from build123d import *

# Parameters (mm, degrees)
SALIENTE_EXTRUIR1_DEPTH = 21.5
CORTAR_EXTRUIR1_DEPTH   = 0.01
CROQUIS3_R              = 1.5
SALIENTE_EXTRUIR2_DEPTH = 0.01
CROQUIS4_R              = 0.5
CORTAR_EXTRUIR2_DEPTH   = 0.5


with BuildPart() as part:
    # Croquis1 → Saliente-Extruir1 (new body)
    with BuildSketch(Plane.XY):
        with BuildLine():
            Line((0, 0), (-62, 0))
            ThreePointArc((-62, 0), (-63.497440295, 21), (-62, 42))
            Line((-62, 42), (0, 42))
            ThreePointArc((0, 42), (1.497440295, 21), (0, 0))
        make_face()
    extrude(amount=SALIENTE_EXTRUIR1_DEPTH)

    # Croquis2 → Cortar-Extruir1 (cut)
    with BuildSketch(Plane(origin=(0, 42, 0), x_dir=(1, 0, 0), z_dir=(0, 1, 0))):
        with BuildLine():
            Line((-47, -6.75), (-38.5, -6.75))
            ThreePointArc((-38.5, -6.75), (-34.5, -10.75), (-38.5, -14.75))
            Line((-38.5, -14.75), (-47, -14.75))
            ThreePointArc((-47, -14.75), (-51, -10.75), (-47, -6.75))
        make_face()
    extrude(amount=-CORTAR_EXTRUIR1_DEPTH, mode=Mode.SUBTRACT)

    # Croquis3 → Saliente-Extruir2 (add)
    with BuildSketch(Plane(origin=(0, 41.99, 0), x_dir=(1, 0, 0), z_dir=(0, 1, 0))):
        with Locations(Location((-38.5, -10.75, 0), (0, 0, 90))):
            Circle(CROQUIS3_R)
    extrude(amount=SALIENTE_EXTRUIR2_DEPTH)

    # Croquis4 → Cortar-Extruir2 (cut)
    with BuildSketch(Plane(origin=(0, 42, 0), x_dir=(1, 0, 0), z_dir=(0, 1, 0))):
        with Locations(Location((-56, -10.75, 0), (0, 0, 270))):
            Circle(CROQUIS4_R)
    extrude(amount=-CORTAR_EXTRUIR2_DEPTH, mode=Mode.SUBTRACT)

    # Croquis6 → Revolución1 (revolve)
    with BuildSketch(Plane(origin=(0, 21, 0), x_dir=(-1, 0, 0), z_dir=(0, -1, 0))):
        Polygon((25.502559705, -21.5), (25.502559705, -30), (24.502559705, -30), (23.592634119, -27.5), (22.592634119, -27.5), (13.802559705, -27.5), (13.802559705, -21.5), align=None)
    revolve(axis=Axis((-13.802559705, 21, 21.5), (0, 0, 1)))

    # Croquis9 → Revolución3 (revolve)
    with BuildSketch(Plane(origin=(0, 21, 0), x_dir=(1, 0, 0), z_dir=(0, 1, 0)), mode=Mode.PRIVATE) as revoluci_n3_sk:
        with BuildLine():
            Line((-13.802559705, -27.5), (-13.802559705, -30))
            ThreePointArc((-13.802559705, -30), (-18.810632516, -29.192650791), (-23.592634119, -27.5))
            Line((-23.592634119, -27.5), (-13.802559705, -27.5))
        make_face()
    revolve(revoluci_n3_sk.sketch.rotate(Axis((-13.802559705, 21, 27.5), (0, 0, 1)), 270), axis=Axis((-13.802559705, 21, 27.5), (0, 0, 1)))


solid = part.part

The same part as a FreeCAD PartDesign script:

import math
import FreeCAD as App
import Part
import Sketcher
from FreeCAD import Vector
Q = App.Units.Quantity

doc = App.newDocument("Part")
body = doc.addObject("PartDesign::Body", "Body")

# Sketch on XY plane
sketch1 = body.newObject("Sketcher::SketchObject", "Sketch")
sketch1.AttachmentSupport = (doc.getObject("XY_Plane"), [""])
sketch1.MapMode = "FlatFace"
sketch1.addGeometry(Part.LineSegment(Vector(-62, 0, 0), Vector(0, 0, 0)), False)
sketch1.addGeometry(Part.ArcOfCircle(Part.Circle(Vector(-147, 21, 0), Vector(0, 0, 1), 148), math.radians(-8.16), math.radians(8.16)), False)
sketch1.addGeometry(Part.LineSegment(Vector(0, 42, 0), Vector(-62, 42, 0)), False)
sketch1.addGeometry(Part.ArcOfCircle(Part.Circle(Vector(85, 21, 0), Vector(0, 0, 1), 148), math.radians(171.84), math.radians(188.16)), False)
sketch1.addConstraint(Sketcher.Constraint("Coincident", 0, 2, 1, 1))
sketch1.addConstraint(Sketcher.Constraint("Coincident", 1, 2, 2, 1))
sketch1.addConstraint(Sketcher.Constraint("Coincident", 2, 2, 3, 1))
sketch1.addConstraint(Sketcher.Constraint("Coincident", 3, 2, 0, 1))
sketch1.addConstraint(Sketcher.Constraint("Horizontal", 0))
sketch1.addConstraint(Sketcher.Constraint("Horizontal", 2))
sketch1.addConstraint(Sketcher.Constraint("Coincident", 0, 2, -1, 1))
sketch1.addConstraint(Sketcher.Constraint("Equal", 1, 3))
sketch1.addConstraint(Sketcher.Constraint("PointOnObject", 1, 2, -2))
sketch1.addConstraint(Sketcher.Constraint("Horizontal", 1, 3, 3, 3))
sketch1.addConstraint(Sketcher.Constraint("Radius", 1, Q("148 mm")))
sketch1.addConstraint(Sketcher.Constraint("DistanceX", 0, 1, 0, 2, Q("62 mm")))
sketch1.addConstraint(Sketcher.Constraint("DistanceY", -1, 1, 1, 3, Q("21 mm")))
pad1 = body.newObject("PartDesign::Pad", "Pad")
pad1.Profile = sketch1
pad1.Length = 21.5

# Sketch on XZ plane
sketch2 = body.newObject("Sketcher::SketchObject", "Sketch001")
sketch2.AttachmentSupport = (doc.getObject("XZ_Plane"), [""])
sketch2.MapMode = "FlatFace"
sketch2.AttachmentOffset = App.Placement(Vector(0, 0, -42), App.Rotation())
sketch2.addGeometry(Part.LineSegment(Vector(-38.5, 6.8, 0), Vector(-47, 6.8, 0)), False)
sketch2.addGeometry(Part.ArcOfCircle(Part.Circle(Vector(-47, 10.8, 0), Vector(0, 0, 1), 4), math.radians(90), math.radians(270)), False)
sketch2.addGeometry(Part.LineSegment(Vector(-47, 14.8, 0), Vector(-38.5, 14.8, 0)), False)
sketch2.addGeometry(Part.ArcOfCircle(Part.Circle(Vector(-38.5, 10.8, 0), Vector(0, 0, 1), 4), math.radians(-90), math.radians(90)), False)
sketch2.addConstraint(Sketcher.Constraint("Tangent", 0, 2, 1, 2))
sketch2.addConstraint(Sketcher.Constraint("Tangent", 1, 1, 2, 1))
sketch2.addConstraint(Sketcher.Constraint("Tangent", 2, 2, 3, 2))
sketch2.addConstraint(Sketcher.Constraint("Tangent", 3, 1, 0, 1))
sketch2.addConstraint(Sketcher.Constraint("Horizontal", 0))
sketch2.addConstraint(Sketcher.Constraint("Horizontal", 2))
sketch2.addConstraint(Sketcher.Constraint("Radius", 1, Q("4 mm")))
sketch2.addConstraint(Sketcher.Constraint("DistanceX", 0, 2, 0, 1, Q("8.5 mm")))
sketch2.addConstraint(Sketcher.Constraint("DistanceX", 1, 3, -1, 1, Q("47 mm")))
sketch2.addConstraint(Sketcher.Constraint("DistanceY", -1, 1, 1, 3, Q("10.75 mm")))
pocket1 = body.newObject("PartDesign::Pocket", "Pocket")
pocket1.Profile = sketch2
pocket1.Length = 0.01
pocket1.Reversed = True

# Sketch on XZ plane
sketch3 = body.newObject("Sketcher::SketchObject", "Sketch002")
sketch3.AttachmentSupport = (doc.getObject("XZ_Plane"), [""])
sketch3.MapMode = "FlatFace"
sketch3.AttachmentOffset = App.Placement(Vector(0, 0, -41.99), App.Rotation())
sketch3.addGeometry(Part.Circle(Vector(-38.5, 10.8, 0), Vector(0, 0, 1), 1.5), False)
sketch3.addConstraint(Sketcher.Constraint("Diameter", 0, Q("3 mm")))
sketch3.addConstraint(Sketcher.Constraint("DistanceX", 0, 3, -1, 1, Q("38.5 mm")))
sketch3.addConstraint(Sketcher.Constraint("DistanceY", -1, 1, 0, 3, Q("10.75 mm")))
pad2 = body.newObject("PartDesign::Pad", "Pad001")
pad2.Profile = sketch3
pad2.Length = 0.01
pad2.Reversed = True

# Sketch on XZ plane
sketch4 = body.newObject("Sketcher::SketchObject", "Sketch003")
sketch4.AttachmentSupport = (doc.getObject("XZ_Plane"), [""])
sketch4.MapMode = "FlatFace"
sketch4.AttachmentOffset = App.Placement(Vector(0, 0, -42), App.Rotation())
sketch4.addGeometry(Part.Circle(Vector(-56, 10.8, 0), Vector(0, 0, 1), 0.5), False)
sketch4.addConstraint(Sketcher.Constraint("Diameter", 0, Q("1 mm")))
sketch4.addConstraint(Sketcher.Constraint("DistanceX", 0, 3, -1, 1, Q("56 mm")))
sketch4.addConstraint(Sketcher.Constraint("DistanceY", -1, 1, 0, 3, Q("10.75 mm")))
pocket2 = body.newObject("PartDesign::Pocket", "Pocket001")
pocket2.Profile = sketch4
pocket2.Length = 0.5
pocket2.Reversed = True

# Sketch on XZ plane
sketch5 = body.newObject("Sketcher::SketchObject", "Sketch004")
sketch5.AttachmentSupport = (doc.getObject("XZ_Plane"), [""])
sketch5.MapMode = "FlatFace"
sketch5.AttachmentOffset = App.Placement(Vector(0, 0, -21), App.Rotation())
sketch5.addGeometry(Part.LineSegment(Vector(-25.5, 30, 0), Vector(-25.5, 21.5, 0)), False)
sketch5.addGeometry(Part.LineSegment(Vector(-25.5, 21.5, 0), Vector(-13.8, 21.5, 0)), False)
sketch5.addGeometry(Part.LineSegment(Vector(-13.8, 21.5, 0), Vector(-13.8, 27.5, 0)), False)
sketch5.addGeometry(Part.LineSegment(Vector(-13.8, 27.5, 0), Vector(-23.6, 27.5, 0)), False)
sketch5.addGeometry(Part.LineSegment(Vector(-23.6, 27.5, 0), Vector(-24.5, 30, 0)), False)
sketch5.addGeometry(Part.LineSegment(Vector(-24.5, 30, 0), Vector(-25.5, 30, 0)), False)
sketch5.addGeometry(Part.LineSegment(Vector(-13.8, 21.5, 0), Vector(-13.8, 30, 0)), True)  # axis
sketch5.addConstraint(Sketcher.Constraint("Coincident", 0, 2, 1, 1))
sketch5.addConstraint(Sketcher.Constraint("Coincident", 1, 2, 2, 1))
sketch5.addConstraint(Sketcher.Constraint("Coincident", 2, 2, 3, 1))
sketch5.addConstraint(Sketcher.Constraint("Coincident", 3, 2, 4, 1))
sketch5.addConstraint(Sketcher.Constraint("Coincident", 4, 2, 5, 1))
sketch5.addConstraint(Sketcher.Constraint("Coincident", 5, 2, 0, 1))
sketch5.addConstraint(Sketcher.Constraint("Vertical", 0))
sketch5.addConstraint(Sketcher.Constraint("Horizontal", 1))
sketch5.addConstraint(Sketcher.Constraint("Vertical", 2))
sketch5.addConstraint(Sketcher.Constraint("Horizontal", 3))
sketch5.addConstraint(Sketcher.Constraint("Horizontal", 5))
sketch5.addConstraint(Sketcher.Constraint("Vertical", 6))
sketch5.addConstraint(Sketcher.Constraint("Coincident", 6, 1, 1, 2))
sketch5.addConstraint(Sketcher.Constraint("Horizontal", 5, 2, 6, 2))
sketch5.addConstraint(Sketcher.Constraint("DistanceX", 5, 2, 5, 1, Q("1 mm")))
sketch5.addConstraint(Sketcher.Constraint("DistanceY", 2, 1, 2, 2, Q("6 mm")))
sketch5.addConstraint(Sketcher.Constraint("Angle", 4, Q("110 deg")))
sketch5.addConstraint(Sketcher.Constraint("DistanceX", 1, 1, 1, 2, Q("11.7 mm")))
sketch5.addConstraint(Sketcher.Constraint("DistanceY", 0, 2, 0, 1, Q("8.5 mm")))
sketch5.addConstraint(Sketcher.Constraint("DistanceY", -1, 1, 4, 2, Q("30 mm")))
sketch5.addConstraint(Sketcher.Constraint("DistanceX", 0, 2, -1, 1, Q("25.50256 mm")))
revolution = body.newObject("PartDesign::Revolution", "Revolution")
revolution.Profile = sketch5
revolution.ReferenceAxis = (sketch5, ["Axis0"])
revolution.Angle = 360

# Sketch on XZ plane
sketch6 = body.newObject("Sketcher::SketchObject", "Sketch005")
sketch6.AttachmentSupport = (doc.getObject("XZ_Plane"), [""])
sketch6.MapMode = "FlatFace"
sketch6.AttachmentOffset = App.Placement(Vector(0, 0, -21), App.Rotation())
sketch6.addGeometry(Part.LineSegment(Vector(-13.8, 30, 0), Vector(-13.8, 27.5, 0)), False)
sketch6.addGeometry(Part.LineSegment(Vector(-13.8, 27.5, 0), Vector(-23.6, 27.5, 0)), False)
sketch6.addGeometry(Part.ArcOfCircle(Part.Circle(Vector(-11.8, 1.9, 0), Vector(0, 0, 1), 28.2), math.radians(94), math.radians(115)), False)
sketch6.addGeometry(Part.LineSegment(Vector(-13.8, 1.9, 0), Vector(-13.8, 30, 0)), True)  # axis
sketch6.addConstraint(Sketcher.Constraint("Coincident", 0, 2, 1, 1))
sketch6.addConstraint(Sketcher.Constraint("Coincident", 1, 2, 2, 2))
sketch6.addConstraint(Sketcher.Constraint("Coincident", 2, 1, 0, 1))
sketch6.addConstraint(Sketcher.Constraint("Vertical", 0))
sketch6.addConstraint(Sketcher.Constraint("Horizontal", 1))
sketch6.addConstraint(Sketcher.Constraint("Vertical", 3))
sketch6.addConstraint(Sketcher.Constraint("Coincident", 3, 2, 2, 1))
sketch6.addConstraint(Sketcher.Constraint("Horizontal", 2, 3, 3, 1))
sketch6.addConstraint(Sketcher.Constraint("DistanceY", 0, 2, 0, 1, Q("2.5 mm")))
sketch6.addConstraint(Sketcher.Constraint("DistanceY", -1, 1, 2, 1, Q("30 mm")))
sketch6.addConstraint(Sketcher.Constraint("Radius", 2, Q("28.162753 mm")))
sketch6.addConstraint(Sketcher.Constraint("DistanceX", 1, 2, 1, 1, Q("9.790074 mm")))
sketch6.addConstraint(Sketcher.Constraint("DistanceX", 0, 2, -1, 1, Q("13.80256 mm")))
revolution2 = body.newObject("PartDesign::Revolution", "Revolution001")
revolution2.Profile = sketch6
revolution2.ReferenceAxis = (sketch6, ["Axis0"])
revolution2.Angle = 360

doc.recompute()
